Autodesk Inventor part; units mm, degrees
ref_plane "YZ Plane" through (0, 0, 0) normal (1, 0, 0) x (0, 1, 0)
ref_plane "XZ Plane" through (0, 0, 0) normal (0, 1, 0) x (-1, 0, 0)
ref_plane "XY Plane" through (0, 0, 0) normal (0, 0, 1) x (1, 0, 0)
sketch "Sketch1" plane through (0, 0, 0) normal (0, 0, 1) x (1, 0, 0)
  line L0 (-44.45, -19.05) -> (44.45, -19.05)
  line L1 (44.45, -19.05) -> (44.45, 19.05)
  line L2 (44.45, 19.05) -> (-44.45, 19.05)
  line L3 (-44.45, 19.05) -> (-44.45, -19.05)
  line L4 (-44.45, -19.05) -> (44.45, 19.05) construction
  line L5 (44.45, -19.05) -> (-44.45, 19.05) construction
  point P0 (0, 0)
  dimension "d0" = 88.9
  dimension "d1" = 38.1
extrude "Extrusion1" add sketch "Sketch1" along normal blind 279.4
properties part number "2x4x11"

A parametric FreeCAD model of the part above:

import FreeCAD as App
import Part
import Sketcher

V = App.Vector
Q = App.Units.Quantity


def add_polygon(sketch, points):
    """Adds a closed chain of lines whose ends are joined by coincident constraints."""
    first, n = sketch.GeometryCount, len(points)
    for a, b in zip(points, points[1:] + points[:1]):
        sketch.addGeometry(Part.LineSegment(App.Vector(*a, 0), App.Vector(*b, 0)), False)
    for i in range(n):
        sketch.addConstraint(Sketcher.Constraint("Coincident", first + i, 2, first + (i + 1) % n, 1))

doc = App.newDocument("Part")
body = doc.addObject("PartDesign::Body", "Body")

# Sketch on XY plane
sketch1 = doc.addObject("Sketcher::SketchObject", "Sketch")
body.addObject(sketch1)
sketch1.AttachmentSupport = (doc.XY_Plane, [""])
sketch1.MapMode = "FlatFace"
add_polygon(sketch1, [(-44, 19), (-44, -19), (44, -19), (44, 19)])  # lines 0-3
sketch1.addConstraint([
    Sketcher.Constraint("Vertical", 0),
    Sketcher.Constraint("Horizontal", 1),
    Sketcher.Constraint("Vertical", 2),
    Sketcher.Constraint("Horizontal", 3),
    Sketcher.Constraint("Symmetric", 0, 2, 2, 2, -1, 1),
    Sketcher.Constraint("DistanceX", 1, 1, 1, 2, Q("3.5 in")),
    Sketcher.Constraint("DistanceY", 0, 2, 0, 1, Q("1.5 in")),
])
pad1 = doc.addObject("PartDesign::Pad", "Pad")
body.addObject(pad1)
pad1.Profile = sketch1
pad1.Length = Q("11 in")

doc.recompute()
